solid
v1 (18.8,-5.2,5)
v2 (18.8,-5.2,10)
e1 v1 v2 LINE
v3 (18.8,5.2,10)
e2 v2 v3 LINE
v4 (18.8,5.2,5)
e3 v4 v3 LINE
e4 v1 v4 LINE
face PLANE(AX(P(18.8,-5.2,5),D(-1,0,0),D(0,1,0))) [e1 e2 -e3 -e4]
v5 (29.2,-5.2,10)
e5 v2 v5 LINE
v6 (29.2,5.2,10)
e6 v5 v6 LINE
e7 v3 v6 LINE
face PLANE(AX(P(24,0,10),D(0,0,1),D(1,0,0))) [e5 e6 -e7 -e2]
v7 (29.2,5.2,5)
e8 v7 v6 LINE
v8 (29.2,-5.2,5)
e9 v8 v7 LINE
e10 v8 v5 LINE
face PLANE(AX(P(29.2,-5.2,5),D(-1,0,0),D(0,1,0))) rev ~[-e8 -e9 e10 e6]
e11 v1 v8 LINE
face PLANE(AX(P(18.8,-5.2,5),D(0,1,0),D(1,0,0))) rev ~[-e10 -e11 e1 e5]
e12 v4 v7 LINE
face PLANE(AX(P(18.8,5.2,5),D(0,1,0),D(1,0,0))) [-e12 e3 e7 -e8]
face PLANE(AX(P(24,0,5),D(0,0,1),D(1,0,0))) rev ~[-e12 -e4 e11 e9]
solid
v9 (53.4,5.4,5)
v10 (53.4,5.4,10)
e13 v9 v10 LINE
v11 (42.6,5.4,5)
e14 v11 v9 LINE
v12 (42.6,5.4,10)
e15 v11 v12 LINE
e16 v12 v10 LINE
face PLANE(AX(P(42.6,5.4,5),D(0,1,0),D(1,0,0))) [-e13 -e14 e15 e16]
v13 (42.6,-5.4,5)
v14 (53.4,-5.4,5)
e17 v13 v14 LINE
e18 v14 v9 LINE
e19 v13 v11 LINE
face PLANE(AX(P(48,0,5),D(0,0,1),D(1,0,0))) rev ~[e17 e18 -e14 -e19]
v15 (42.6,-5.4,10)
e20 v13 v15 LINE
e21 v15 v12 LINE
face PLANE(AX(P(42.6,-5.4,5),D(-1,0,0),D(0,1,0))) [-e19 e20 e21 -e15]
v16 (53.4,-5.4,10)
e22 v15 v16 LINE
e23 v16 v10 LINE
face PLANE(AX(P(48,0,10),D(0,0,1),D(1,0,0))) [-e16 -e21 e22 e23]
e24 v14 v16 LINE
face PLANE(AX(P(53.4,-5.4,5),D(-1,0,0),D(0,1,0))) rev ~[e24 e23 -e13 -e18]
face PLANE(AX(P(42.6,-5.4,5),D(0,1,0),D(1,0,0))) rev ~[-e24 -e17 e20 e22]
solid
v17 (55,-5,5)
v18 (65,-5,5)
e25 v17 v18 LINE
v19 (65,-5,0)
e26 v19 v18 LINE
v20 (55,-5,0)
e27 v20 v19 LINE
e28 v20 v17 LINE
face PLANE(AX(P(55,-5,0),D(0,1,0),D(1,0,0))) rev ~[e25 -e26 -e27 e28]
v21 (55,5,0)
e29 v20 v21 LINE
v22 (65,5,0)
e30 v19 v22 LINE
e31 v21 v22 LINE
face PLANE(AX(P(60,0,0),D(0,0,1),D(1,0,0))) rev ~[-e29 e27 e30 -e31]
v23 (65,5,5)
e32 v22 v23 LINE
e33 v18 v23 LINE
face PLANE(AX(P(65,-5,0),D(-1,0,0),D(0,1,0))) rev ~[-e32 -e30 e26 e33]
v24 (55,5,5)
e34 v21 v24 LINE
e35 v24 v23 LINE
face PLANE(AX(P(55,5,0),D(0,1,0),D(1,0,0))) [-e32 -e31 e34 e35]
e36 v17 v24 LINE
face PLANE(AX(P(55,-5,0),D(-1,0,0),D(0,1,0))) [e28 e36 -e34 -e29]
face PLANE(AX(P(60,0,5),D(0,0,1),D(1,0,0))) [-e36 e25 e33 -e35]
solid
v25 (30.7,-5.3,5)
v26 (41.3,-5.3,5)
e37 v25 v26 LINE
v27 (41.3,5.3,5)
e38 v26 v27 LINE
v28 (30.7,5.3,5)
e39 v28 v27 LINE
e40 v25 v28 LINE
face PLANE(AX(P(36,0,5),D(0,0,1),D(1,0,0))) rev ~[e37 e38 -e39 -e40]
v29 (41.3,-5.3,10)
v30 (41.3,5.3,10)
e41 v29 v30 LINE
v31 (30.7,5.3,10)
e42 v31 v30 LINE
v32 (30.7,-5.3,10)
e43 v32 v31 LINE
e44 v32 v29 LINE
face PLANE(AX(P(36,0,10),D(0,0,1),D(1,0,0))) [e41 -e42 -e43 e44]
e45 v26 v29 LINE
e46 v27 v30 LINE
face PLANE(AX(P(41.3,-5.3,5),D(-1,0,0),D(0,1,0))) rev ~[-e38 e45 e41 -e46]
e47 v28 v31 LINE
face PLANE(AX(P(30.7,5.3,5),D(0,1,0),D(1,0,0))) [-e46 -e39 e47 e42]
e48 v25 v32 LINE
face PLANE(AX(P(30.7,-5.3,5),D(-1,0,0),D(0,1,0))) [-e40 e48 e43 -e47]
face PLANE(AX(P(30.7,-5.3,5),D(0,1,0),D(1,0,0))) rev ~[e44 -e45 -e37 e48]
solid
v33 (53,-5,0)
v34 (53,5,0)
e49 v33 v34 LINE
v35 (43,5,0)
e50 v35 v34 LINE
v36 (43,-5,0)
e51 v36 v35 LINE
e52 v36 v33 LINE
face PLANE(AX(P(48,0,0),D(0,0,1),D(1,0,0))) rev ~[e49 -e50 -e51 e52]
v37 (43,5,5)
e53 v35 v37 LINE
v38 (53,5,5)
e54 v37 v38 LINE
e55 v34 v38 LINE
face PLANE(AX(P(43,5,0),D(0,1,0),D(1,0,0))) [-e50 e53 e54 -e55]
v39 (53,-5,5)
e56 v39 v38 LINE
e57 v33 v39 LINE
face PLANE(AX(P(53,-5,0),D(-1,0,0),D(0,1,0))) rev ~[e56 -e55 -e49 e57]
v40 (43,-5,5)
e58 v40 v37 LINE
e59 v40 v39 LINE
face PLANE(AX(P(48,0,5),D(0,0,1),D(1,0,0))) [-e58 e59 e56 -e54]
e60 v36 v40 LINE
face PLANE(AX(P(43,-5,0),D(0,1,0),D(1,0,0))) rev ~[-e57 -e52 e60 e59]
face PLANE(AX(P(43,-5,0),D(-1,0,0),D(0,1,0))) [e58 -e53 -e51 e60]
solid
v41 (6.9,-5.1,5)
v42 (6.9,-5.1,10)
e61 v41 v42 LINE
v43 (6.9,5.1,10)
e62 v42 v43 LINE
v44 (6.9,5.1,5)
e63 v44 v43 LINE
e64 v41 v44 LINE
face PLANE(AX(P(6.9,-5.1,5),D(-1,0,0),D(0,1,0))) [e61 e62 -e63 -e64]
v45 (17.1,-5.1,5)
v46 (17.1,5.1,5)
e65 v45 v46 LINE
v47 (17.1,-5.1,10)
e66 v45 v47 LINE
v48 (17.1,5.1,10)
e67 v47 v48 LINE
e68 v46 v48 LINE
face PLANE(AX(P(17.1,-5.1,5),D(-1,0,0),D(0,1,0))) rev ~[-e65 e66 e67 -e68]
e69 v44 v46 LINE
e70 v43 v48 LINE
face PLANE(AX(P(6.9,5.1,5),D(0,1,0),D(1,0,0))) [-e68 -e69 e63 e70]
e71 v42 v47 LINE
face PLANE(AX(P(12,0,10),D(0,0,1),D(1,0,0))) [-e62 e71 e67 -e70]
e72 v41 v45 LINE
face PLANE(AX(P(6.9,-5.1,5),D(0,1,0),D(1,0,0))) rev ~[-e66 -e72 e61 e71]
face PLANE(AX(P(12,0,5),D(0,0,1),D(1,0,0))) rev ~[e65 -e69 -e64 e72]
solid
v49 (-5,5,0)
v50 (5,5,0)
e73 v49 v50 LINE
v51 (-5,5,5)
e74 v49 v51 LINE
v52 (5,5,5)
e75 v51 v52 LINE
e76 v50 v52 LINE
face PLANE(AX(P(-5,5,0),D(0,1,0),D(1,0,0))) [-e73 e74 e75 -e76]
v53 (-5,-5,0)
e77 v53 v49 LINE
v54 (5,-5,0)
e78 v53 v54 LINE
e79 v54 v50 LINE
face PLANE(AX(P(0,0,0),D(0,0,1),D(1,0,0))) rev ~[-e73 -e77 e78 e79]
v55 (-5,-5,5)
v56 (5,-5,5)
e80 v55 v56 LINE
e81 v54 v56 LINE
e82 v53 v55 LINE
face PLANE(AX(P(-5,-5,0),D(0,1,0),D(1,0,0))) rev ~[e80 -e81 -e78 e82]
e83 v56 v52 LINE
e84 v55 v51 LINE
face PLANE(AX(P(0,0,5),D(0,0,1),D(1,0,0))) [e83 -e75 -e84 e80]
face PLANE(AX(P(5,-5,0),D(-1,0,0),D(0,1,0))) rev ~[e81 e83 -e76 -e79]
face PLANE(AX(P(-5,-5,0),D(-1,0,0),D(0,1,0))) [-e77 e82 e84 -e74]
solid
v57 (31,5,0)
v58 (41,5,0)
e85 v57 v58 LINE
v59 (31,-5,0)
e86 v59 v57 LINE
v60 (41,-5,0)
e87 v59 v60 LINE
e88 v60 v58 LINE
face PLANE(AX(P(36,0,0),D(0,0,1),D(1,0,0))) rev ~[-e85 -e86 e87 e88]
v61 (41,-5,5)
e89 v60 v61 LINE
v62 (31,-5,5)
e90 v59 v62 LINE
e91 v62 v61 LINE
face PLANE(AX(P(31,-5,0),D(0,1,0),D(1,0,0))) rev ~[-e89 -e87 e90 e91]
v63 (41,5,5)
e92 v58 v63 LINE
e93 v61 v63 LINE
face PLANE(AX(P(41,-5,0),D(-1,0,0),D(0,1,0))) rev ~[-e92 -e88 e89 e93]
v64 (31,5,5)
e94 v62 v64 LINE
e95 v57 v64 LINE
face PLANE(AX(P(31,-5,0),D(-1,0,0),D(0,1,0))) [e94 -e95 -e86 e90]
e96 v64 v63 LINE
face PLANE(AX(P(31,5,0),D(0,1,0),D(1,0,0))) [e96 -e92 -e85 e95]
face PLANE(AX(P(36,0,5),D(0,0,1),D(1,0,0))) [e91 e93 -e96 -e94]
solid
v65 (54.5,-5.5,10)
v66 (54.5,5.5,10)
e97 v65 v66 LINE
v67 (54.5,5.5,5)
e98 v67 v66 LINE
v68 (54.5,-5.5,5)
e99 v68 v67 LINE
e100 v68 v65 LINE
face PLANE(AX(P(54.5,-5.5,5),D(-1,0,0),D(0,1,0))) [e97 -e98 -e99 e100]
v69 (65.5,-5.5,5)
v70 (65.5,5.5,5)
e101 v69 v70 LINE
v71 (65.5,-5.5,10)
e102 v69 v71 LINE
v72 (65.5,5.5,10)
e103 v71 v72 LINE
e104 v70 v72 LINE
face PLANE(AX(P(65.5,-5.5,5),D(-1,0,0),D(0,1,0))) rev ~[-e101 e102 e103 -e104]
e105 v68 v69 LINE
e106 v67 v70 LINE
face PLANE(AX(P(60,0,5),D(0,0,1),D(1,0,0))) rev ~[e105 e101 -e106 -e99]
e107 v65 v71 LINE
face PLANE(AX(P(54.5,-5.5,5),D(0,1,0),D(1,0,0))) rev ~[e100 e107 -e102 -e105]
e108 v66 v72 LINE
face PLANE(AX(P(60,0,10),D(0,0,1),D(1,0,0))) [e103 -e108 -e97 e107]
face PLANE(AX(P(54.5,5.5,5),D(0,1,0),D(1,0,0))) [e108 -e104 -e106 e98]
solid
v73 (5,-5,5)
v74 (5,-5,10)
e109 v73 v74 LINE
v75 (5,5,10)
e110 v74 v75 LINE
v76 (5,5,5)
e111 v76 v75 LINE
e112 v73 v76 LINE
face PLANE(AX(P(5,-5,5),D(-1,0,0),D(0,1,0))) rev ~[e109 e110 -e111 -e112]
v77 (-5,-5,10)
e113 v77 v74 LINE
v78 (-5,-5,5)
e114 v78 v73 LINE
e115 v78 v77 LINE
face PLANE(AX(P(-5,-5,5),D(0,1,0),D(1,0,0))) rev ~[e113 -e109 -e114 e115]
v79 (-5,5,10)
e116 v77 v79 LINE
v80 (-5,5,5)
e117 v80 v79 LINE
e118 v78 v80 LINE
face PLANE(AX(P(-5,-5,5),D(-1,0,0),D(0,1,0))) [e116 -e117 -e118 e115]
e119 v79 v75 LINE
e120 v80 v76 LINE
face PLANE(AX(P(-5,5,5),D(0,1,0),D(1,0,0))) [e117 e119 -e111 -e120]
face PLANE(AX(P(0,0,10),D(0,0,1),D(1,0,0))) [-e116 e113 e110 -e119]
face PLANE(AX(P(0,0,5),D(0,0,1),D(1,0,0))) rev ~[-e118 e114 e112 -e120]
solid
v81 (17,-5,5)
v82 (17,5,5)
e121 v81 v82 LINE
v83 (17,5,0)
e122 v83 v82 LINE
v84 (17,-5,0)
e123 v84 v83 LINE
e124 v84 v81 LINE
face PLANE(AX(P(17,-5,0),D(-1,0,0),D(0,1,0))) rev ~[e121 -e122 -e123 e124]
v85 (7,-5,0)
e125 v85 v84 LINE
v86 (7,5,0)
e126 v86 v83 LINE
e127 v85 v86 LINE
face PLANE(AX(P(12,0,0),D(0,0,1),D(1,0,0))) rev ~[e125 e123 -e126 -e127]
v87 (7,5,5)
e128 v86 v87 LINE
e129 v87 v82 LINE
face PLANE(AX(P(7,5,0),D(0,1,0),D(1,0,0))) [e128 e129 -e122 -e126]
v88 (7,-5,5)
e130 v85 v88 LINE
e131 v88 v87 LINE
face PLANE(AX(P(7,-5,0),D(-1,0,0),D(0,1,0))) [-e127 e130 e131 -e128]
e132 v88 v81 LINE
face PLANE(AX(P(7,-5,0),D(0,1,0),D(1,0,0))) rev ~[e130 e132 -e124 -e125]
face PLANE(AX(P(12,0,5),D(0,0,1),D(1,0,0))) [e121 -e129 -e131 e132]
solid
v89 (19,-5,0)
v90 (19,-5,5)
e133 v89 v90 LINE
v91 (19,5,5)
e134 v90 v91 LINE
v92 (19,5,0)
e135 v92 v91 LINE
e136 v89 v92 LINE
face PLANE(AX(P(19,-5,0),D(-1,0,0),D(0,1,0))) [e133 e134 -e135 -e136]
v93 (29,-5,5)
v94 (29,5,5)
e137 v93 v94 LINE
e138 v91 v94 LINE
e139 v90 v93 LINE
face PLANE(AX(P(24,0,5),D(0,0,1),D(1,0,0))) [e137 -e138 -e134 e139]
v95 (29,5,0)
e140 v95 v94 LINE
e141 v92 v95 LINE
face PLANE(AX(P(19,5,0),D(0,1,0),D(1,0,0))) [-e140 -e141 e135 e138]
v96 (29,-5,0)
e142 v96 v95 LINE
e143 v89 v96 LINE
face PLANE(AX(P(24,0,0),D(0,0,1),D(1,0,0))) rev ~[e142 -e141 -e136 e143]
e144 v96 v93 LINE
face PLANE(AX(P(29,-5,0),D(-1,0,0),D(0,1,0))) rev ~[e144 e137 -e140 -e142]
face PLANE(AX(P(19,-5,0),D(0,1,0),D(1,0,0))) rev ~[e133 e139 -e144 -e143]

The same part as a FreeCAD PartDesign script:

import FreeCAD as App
import Part
import Sketcher

V = App.Vector


def add_polygon(sketch, points):
    """Adds a closed chain of lines whose ends are joined by coincident constraints."""
    first, n = sketch.GeometryCount, len(points)
    for a, b in zip(points, points[1:] + points[:1]):
        sketch.addGeometry(Part.LineSegment(App.Vector(*a, 0), App.Vector(*b, 0)), False)
    for i in range(n):
        sketch.addConstraint(Sketcher.Constraint("Coincident", first + i, 2, first + (i + 1) % n, 1))

doc = App.newDocument("Part")
body = doc.addObject("PartDesign::Body", "Body")

# Sketch on XY plane
sketch1 = doc.addObject("Sketcher::SketchObject", "Sketch")
body.addObject(sketch1)
sketch1.AttachmentSupport = (doc.XY_Plane, [""])
sketch1.MapMode = "FlatFace"
add_polygon(sketch1, [(-5, 5), (-5, -5), (5, -5), (5, 5)])  # lines 0-3
sketch1.addConstraint([
    Sketcher.Constraint("Vertical", 0),
    Sketcher.Constraint("Horizontal", 1),
    Sketcher.Constraint("Vertical", 2),
    Sketcher.Constraint("Horizontal", 3),
    Sketcher.Constraint("Symmetric", 0, 2, 2, 2, -1, 1),
    Sketcher.Constraint("Equal", 3, 0),
    Sketcher.Constraint("DistanceX", 1, 1, 1, 2, 10.0),
])
pad1 = doc.addObject("PartDesign::Pad", "Pad")
body.addObject(pad1)
pad1.Profile = sketch1
pad1.Length = 5
body2 = doc.addObject("PartDesign::Body", "Body001")

# Sketch on XY plane
sketch2 = doc.addObject("Sketcher::SketchObject", "Sketch001")
body2.addObject(sketch2)
sketch2.AttachmentSupport = (doc.getObject("XY_Plane001"), [""])
sketch2.MapMode = "FlatFace"
add_polygon(sketch2, [(7, 5), (7, -5), (17, -5), (17, 5)])  # lines 0-3
sketch2.addConstraint([
    Sketcher.Constraint("Vertical", 0),
    Sketcher.Constraint("Horizontal", 1),
    Sketcher.Constraint("Vertical", 2),
    Sketcher.Constraint("Horizontal", 3),
    Sketcher.Constraint("Equal", 3, 0),
    Sketcher.Constraint("DistanceX", 1, 1, 1, 2, 10.0),
    Sketcher.Constraint("DistanceX", -1, 1, 0, 2, 7.0),
    Sketcher.Constraint("DistanceY", 0, 2, -1, 1, 5.0),
])
pad2 = doc.addObject("PartDesign::Pad", "Pad001")
body2.addObject(pad2)
pad2.Profile = sketch2
pad2.Length = 5
body3 = doc.addObject("PartDesign::Body", "Body002")

# Sketch on XY plane
sketch3 = doc.addObject("Sketcher::SketchObject", "Sketch002")
body3.addObject(sketch3)
sketch3.AttachmentSupport = (doc.getObject("XY_Plane002"), [""])
sketch3.MapMode = "FlatFace"
add_polygon(sketch3, [(19, 5), (19, -5), (29, -5), (29, 5)])  # lines 0-3
sketch3.addConstraint([
    Sketcher.Constraint("Vertical", 0),
    Sketcher.Constraint("Horizontal", 1),
    Sketcher.Constraint("Vertical", 2),
    Sketcher.Constraint("Horizontal", 3),
    Sketcher.Constraint("Equal", 3, 0),
    Sketcher.Constraint("DistanceX", 1, 1, 1, 2, 10.0),
    Sketcher.Constraint("DistanceX", -1, 1, 0, 2, 19.0),
    Sketcher.Constraint("DistanceY", 0, 2, -1, 1, 5.0),
])
pad3 = doc.addObject("PartDesign::Pad", "Pad002")
body3.addObject(pad3)
pad3.Profile = sketch3
pad3.Length = 5
body4 = doc.addObject("PartDesign::Body", "Body003")

# Sketch on XY plane
sketch4 = doc.addObject("Sketcher::SketchObject", "Sketch003")
body4.addObject(sketch4)
sketch4.AttachmentSupport = (doc.getObject("XY_Plane003"), [""])
sketch4.MapMode = "FlatFace"
add_polygon(sketch4, [(31, 5), (31, -5), (41, -5), (41, 5)])  # lines 0-3
sketch4.addConstraint([
    Sketcher.Constraint("Vertical", 0),
    Sketcher.Constraint("Horizontal", 1),
    Sketcher.Constraint("Vertical", 2),
    Sketcher.Constraint("Horizontal", 3),
    Sketcher.Constraint("Equal", 3, 0),
    Sketcher.Constraint("DistanceX", 1, 1, 1, 2, 10.0),
    Sketcher.Constraint("DistanceX", -1, 1, 0, 2, 31.0),
    Sketcher.Constraint("DistanceY", 0, 2, -1, 1, 5.0),
])
pad4 = doc.addObject("PartDesign::Pad", "Pad003")
body4.addObject(pad4)
pad4.Profile = sketch4
pad4.Length = 5
body5 = doc.addObject("PartDesign::Body", "Body004")

# Sketch on XY plane
sketch5 = doc.addObject("Sketcher::SketchObject", "Sketch004")
body5.addObject(sketch5)
sketch5.AttachmentSupport = (doc.getObject("XY_Plane004"), [""])
sketch5.MapMode = "FlatFace"
add_polygon(sketch5, [(43, 5), (43, -5), (53, -5), (53, 5)])  # lines 0-3
sketch5.addConstraint([
    Sketcher.Constraint("Vertical", 0),
    Sketcher.Constraint("Horizontal", 1),
    Sketcher.Constraint("Vertical", 2),
    Sketcher.Constraint("Horizontal", 3),
    Sketcher.Constraint("Equal", 3, 0),
    Sketcher.Constraint("DistanceX", 1, 1, 1, 2, 10.0),
    Sketcher.Constraint("DistanceX", -1, 1, 0, 2, 43.0),
    Sketcher.Constraint("DistanceY", 0, 2, -1, 1, 5.0),
])
pad5 = doc.addObject("PartDesign::Pad", "Pad004")
body5.addObject(pad5)
pad5.Profile = sketch5
pad5.Length = 5
body6 = doc.addObject("PartDesign::Body", "Body005")

# Sketch on XY plane
sketch6 = doc.addObject("Sketcher::SketchObject", "Sketch005")
body6.addObject(sketch6)
sketch6.AttachmentSupport = (doc.getObject("XY_Plane005"), [""])
sketch6.MapMode = "FlatFace"
add_polygon(sketch6, [(55, 5), (55, -5), (65, -5), (65, 5)])  # lines 0-3
sketch6.addConstraint([
    Sketcher.Constraint("Vertical", 0),
    Sketcher.Constraint("Horizontal", 1),
    Sketcher.Constraint("Vertical", 2),
    Sketcher.Constraint("Horizontal", 3),
    Sketcher.Constraint("Equal", 3, 0),
    Sketcher.Constraint("DistanceX", 1, 1, 1, 2, 10.0),
    Sketcher.Constraint("DistanceX", -1, 1, 0, 2, 55.0),
    Sketcher.Constraint("DistanceY", 0, 2, -1, 1, 5.0),
])
pad6 = doc.addObject("PartDesign::Pad", "Pad005")
body6.addObject(pad6)
pad6.Profile = sketch6
pad6.Length = 5
body7 = doc.addObject("PartDesign::Body", "Body006")

# Sketch on XY plane
sketch7 = doc.addObject("Sketcher::SketchObject", "Sketch006")
body7.addObject(sketch7)
sketch7.AttachmentSupport = (doc.getObject("XY_Plane006"), [""])
sketch7.MapMode = "FlatFace"
sketch7.AttachmentOffset = App.Placement(V(0, 0, 5), App.Rotation())
add_polygon(sketch7, [(-5, 5), (-5, -5), (5, -5), (5, 5)])  # lines 0-3
sketch7.addConstraint([
    Sketcher.Constraint("Vertical", 0),
    Sketcher.Constraint("Horizontal", 1),
    Sketcher.Constraint("Vertical", 2),
    Sketcher.Constraint("Horizontal", 3),
    Sketcher.Constraint("Symmetric", 0, 2, 2, 2, -1, 1),
    Sketcher.Constraint("Equal", 3, 0),
    Sketcher.Constraint("DistanceX", 1, 1, 1, 2, 10.0),
])
pad7 = doc.addObject("PartDesign::Pad", "Pad006")
body7.addObject(pad7)
pad7.Profile = sketch7
pad7.Length = 5
body8 = doc.addObject("PartDesign::Body", "Body007")

# Sketch on XY plane
sketch8 = doc.addObject("Sketcher::SketchObject", "Sketch007")
body8.addObject(sketch8)
sketch8.AttachmentSupport = (doc.getObject("XY_Plane007"), [""])
sketch8.MapMode = "FlatFace"
sketch8.AttachmentOffset = App.Placement(V(0, 0, 5), App.Rotation())
add_polygon(sketch8, [(6.9, 5.1), (6.9, -5.1), (17.1, -5.1), (17.1, 5.1)])  # lines 0-3
sketch8.addConstraint([
    Sketcher.Constraint("Vertical", 0),
    Sketcher.Constraint("Horizontal", 1),
    Sketcher.Constraint("Vertical", 2),
    Sketcher.Constraint("Horizontal", 3),
    Sketcher.Constraint("Equal", 3, 0),
    Sketcher.Constraint("DistanceX", 1, 1, 1, 2, 10.2),
    Sketcher.Constraint("DistanceX", -1, 1, 0, 2, 6.9),
    Sketcher.Constraint("DistanceY", 0, 2, -1, 1, 5.1),
])
pad8 = doc.addObject("PartDesign::Pad", "Pad007")
body8.addObject(pad8)
pad8.Profile = sketch8
pad8.Length = 5
body9 = doc.addObject("PartDesign::Body", "Body008")

# Sketch on XY plane
sketch9 = doc.addObject("Sketcher::SketchObject", "Sketch008")
body9.addObject(sketch9)
sketch9.AttachmentSupport = (doc.getObject("XY_Plane008"), [""])
sketch9.MapMode = "FlatFace"
sketch9.AttachmentOffset = App.Placement(V(0, 0, 5), App.Rotation())
add_polygon(sketch9, [(18.8, 5.2), (18.8, -5.2), (29.2, -5.2), (29.2, 5.2)])  # lines 0-3
sketch9.addConstraint([
    Sketcher.Constraint("Vertical", 0),
    Sketcher.Constraint("Horizontal", 1),
    Sketcher.Constraint("Vertical", 2),
    Sketcher.Constraint("Horizontal", 3),
    Sketcher.Constraint("Equal", 3, 0),
    Sketcher.Constraint("DistanceX", 1, 1, 1, 2, 10.4),
    Sketcher.Constraint("DistanceX", -1, 1, 0, 2, 18.8),
    Sketcher.Constraint("DistanceY", 0, 2, -1, 1, 5.2),
])
pad9 = doc.addObject("PartDesign::Pad", "Pad008")
body9.addObject(pad9)
pad9.Profile = sketch9
pad9.Length = 5
body10 = doc.addObject("PartDesign::Body", "Body009")

# Sketch on XY plane
sketch10 = doc.addObject("Sketcher::SketchObject", "Sketch009")
body10.addObject(sketch10)
sketch10.AttachmentSupport = (doc.getObject("XY_Plane009"), [""])
sketch10.MapMode = "FlatFace"
sketch10.AttachmentOffset = App.Placement(V(0, 0, 5), App.Rotation())
add_polygon(sketch10, [(30.7, 5.3), (30.7, -5.3), (41.3, -5.3), (41.3, 5.3)])  # lines 0-3
sketch10.addConstraint([
    Sketcher.Constraint("Vertical", 0),
    Sketcher.Constraint("Horizontal", 1),
    Sketcher.Constraint("Vertical", 2),
    Sketcher.Constraint("Horizontal", 3),
    Sketcher.Constraint("Equal", 3, 0),
    Sketcher.Constraint("DistanceX", 1, 1, 1, 2, 10.6),
    Sketcher.Constraint("DistanceX", -1, 1, 0, 2, 30.7),
    Sketcher.Constraint("DistanceY", 0, 2, -1, 1, 5.3),
])
pad10 = doc.addObject("PartDesign::Pad", "Pad009")
body10.addObject(pad10)
pad10.Profile = sketch10
pad10.Length = 5
body11 = doc.addObject("PartDesign::Body", "Body010")

# Sketch on XY plane
sketch11 = doc.addObject("Sketcher::SketchObject", "Sketch010")
body11.addObject(sketch11)
sketch11.AttachmentSupport = (doc.getObject("XY_Plane010"), [""])
sketch11.MapMode = "FlatFace"
sketch11.AttachmentOffset = App.Placement(V(0, 0, 5), App.Rotation())
add_polygon(sketch11, [(42.6, 5.4), (42.6, -5.4), (53.4, -5.4), (53.4, 5.4)])  # lines 0-3
sketch11.addConstraint([
    Sketcher.Constraint("Vertical", 0),
    Sketcher.Constraint("Horizontal", 1),
    Sketcher.Constraint("Vertical", 2),
    Sketcher.Constraint("Horizontal", 3),
    Sketcher.Constraint("Equal", 3, 0),
    Sketcher.Constraint("DistanceX", 1, 1, 1, 2, 10.8),
    Sketcher.Constraint("DistanceX", -1, 1, 0, 2, 42.6),
    Sketcher.Constraint("DistanceY", 0, 2, -1, 1, 5.4),
])
pad11 = doc.addObject("PartDesign::Pad", "Pad010")
body11.addObject(pad11)
pad11.Profile = sketch11
pad11.Length = 5
body12 = doc.addObject("PartDesign::Body", "Body011")

# Sketch on XY plane
sketch12 = doc.addObject("Sketcher::SketchObject", "Sketch011")
body12.addObject(sketch12)
sketch12.AttachmentSupport = (doc.getObject("XY_Plane011"), [""])
sketch12.MapMode = "FlatFace"
sketch12.AttachmentOffset = App.Placement(V(0, 0, 5), App.Rotation())
add_polygon(sketch12, [(54.5, 5.5), (54.5, -5.5), (65.5, -5.5), (65.5, 5.5)])  # lines 0-3
sketch12.addConstraint([
    Sketcher.Constraint("Vertical", 0),
    Sketcher.Constraint("Horizontal", 1),
    Sketcher.Constraint("Vertical", 2),
    Sketcher.Constraint("Horizontal", 3),
    Sketcher.Constraint("Equal", 3, 0),
    Sketcher.Constraint("DistanceX", 1, 1, 1, 2, 11.0),
    Sketcher.Constraint("DistanceX", -1, 1, 0, 2, 54.5),
    Sketcher.Constraint("DistanceY", 0, 2, -1, 1, 5.5),
])
pad12 = doc.addObject("PartDesign::Pad", "Pad011")
body12.addObject(pad12)
pad12.Profile = sketch12
pad12.Length = 5

doc.recompute()
